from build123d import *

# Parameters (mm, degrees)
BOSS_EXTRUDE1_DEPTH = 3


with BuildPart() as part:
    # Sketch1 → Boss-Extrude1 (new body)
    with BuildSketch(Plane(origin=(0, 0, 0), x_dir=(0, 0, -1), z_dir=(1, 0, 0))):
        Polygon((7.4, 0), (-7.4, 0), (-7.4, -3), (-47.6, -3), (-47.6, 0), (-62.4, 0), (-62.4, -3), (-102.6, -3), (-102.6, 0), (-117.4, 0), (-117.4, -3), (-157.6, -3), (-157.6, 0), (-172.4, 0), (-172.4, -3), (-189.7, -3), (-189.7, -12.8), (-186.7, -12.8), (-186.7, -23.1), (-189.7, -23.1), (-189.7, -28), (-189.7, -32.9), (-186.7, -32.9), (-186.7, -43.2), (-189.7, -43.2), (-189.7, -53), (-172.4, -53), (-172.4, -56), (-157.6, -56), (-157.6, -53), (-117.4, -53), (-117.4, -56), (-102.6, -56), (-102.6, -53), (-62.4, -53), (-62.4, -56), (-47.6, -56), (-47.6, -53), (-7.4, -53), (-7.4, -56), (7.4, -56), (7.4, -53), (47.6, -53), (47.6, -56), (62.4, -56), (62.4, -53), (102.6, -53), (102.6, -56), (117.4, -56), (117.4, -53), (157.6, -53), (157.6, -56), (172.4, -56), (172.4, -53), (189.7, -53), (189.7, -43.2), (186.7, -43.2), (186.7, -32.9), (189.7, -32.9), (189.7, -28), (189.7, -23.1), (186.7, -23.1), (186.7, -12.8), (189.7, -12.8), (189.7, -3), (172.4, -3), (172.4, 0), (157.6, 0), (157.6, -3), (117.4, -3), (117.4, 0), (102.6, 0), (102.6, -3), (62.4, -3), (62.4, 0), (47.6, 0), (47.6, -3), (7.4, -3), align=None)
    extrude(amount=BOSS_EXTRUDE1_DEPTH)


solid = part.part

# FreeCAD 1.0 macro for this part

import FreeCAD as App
import Part
import Sketcher

V = App.Vector


def add_polygon(sketch, points):
    """Adds a closed chain of lines whose ends are joined by coincident constraints."""
    first, n = sketch.GeometryCount, len(points)
    for a, b in zip(points, points[1:] + points[:1]):
        sketch.addGeometry(Part.LineSegment(App.Vector(*a, 0), App.Vector(*b, 0)), False)
    for i in range(n):
        sketch.addConstraint(Sketcher.Constraint("Coincident", first + i, 2, first + (i + 1) % n, 1))

doc = App.newDocument("Part")
body = doc.addObject("PartDesign::Body", "Body")

# Sketch on YZ plane
sketch1 = body.newObject("Sketcher::SketchObject", "Sketch")
sketch1.AttachmentSupport = (doc.getObject("YZ_Plane"), [""])
sketch1.MapMode = "FlatFace"
add_polygon(sketch1, [(0, -7.4), (0, 7.4), (-3, 7.4), (-3, 47.6), (0, 47.6), (0, 62.4), (-3, 62.4), (-3, 102.6), (0, 102.6), (0, 117.4), (-3, 117.4), (-3, 157.6), (0, 157.6), (0, 172.4), (-3, 172.4), (-3, 189.7), (-12.8, 189.7), (-12.8, 186.7), (-23.1, 186.7), (-23.1, 189.7), (-32.9, 189.7), (-32.9, 186.7), (-43.2, 186.7), (-43.2, 189.7), (-53, 189.7), (-53, 172.4), (-56, 172.4), (-56, 157.6), (-53, 157.6), (-53, 117.4), (-56, 117.4), (-56, 102.6), (-53, 102.6), (-53, 62.4), (-56, 62.4), (-56, 47.6), (-53, 47.6), (-53, 7.4), (-56, 7.4), (-56, -7.4), (-53, -7.4), (-53, -47.6), (-56, -47.6), (-56, -62.4), (-53, -62.4), (-53, -102.6), (-56, -102.6), (-56, -117.4), (-53, -117.4), (-53, -157.6), (-56, -157.6), (-56, -172.4), (-53, -172.4), (-53, -189.7), (-43.2, -189.7), (-43.2, -186.7), (-32.9, -186.7), (-32.9, -189.7), (-23.1, -189.7), (-23.1, -186.7), (-12.8, -186.7), (-12.8, -189.7), (-3, -189.7), (-3, -172.4), (0, -172.4), (0, -157.6), (-3, -157.6), (-3, -117.4), (0, -117.4), (0, -102.6), (-3, -102.6), (-3, -62.4), (0, -62.4), (0, -47.6), (-3, -47.6), (-3, -7.4)])  # lines 0-75
sketch1.addConstraint(Sketcher.Constraint("Vertical", 0))
sketch1.addConstraint(Sketcher.Constraint("Horizontal", 1))
sketch1.addConstraint(Sketcher.Constraint("Vertical", 2))
sketch1.addConstraint(Sketcher.Constraint("Horizontal", 3))
sketch1.addConstraint(Sketcher.Constraint("Vertical", 4))
sketch1.addConstraint(Sketcher.Constraint("Horizontal", 5))
sketch1.addConstraint(Sketcher.Constraint("Vertical", 6))
sketch1.addConstraint(Sketcher.Constraint("Horizontal", 7))
sketch1.addConstraint(Sketcher.Constraint("Vertical", 8))
sketch1.addConstraint(Sketcher.Constraint("Horizontal", 9))
sketch1.addConstraint(Sketcher.Constraint("Vertical", 10))
sketch1.addConstraint(Sketcher.Constraint("Horizontal", 11))
sketch1.addConstraint(Sketcher.Constraint("Vertical", 12))
sketch1.addConstraint(Sketcher.Constraint("Horizontal", 13))
sketch1.addConstraint(Sketcher.Constraint("Vertical", 14))
sketch1.addConstraint(Sketcher.Constraint("Horizontal", 15))
sketch1.addConstraint(Sketcher.Constraint("Vertical", 16))
sketch1.addConstraint(Sketcher.Constraint("Horizontal", 17))
sketch1.addConstraint(Sketcher.Constraint("Vertical", 18))
sketch1.addConstraint(Sketcher.Constraint("Horizontal", 19))
sketch1.addConstraint(Sketcher.Constraint("Vertical", 20))
sketch1.addConstraint(Sketcher.Constraint("Horizontal", 21))
sketch1.addConstraint(Sketcher.Constraint("Vertical", 22))
sketch1.addConstraint(Sketcher.Constraint("Horizontal", 23))
sketch1.addConstraint(Sketcher.Constraint("Vertical", 24))
sketch1.addConstraint(Sketcher.Constraint("Horizontal", 25))
sketch1.addConstraint(Sketcher.Constraint("Vertical", 26))
sketch1.addConstraint(Sketcher.Constraint("Horizontal", 27))
sketch1.addConstraint(Sketcher.Constraint("Vertical", 28))
sketch1.addConstraint(Sketcher.Constraint("Horizontal", 29))
sketch1.addConstraint(Sketcher.Constraint("Vertical", 30))
sketch1.addConstraint(Sketcher.Constraint("Horizontal", 31))
sketch1.addConstraint(Sketcher.Constraint("Vertical", 32))
sketch1.addConstraint(Sketcher.Constraint("Horizontal", 33))
sketch1.addConstraint(Sketcher.Constraint("Vertical", 34))
sketch1.addConstraint(Sketcher.Constraint("Horizontal", 35))
sketch1.addConstraint(Sketcher.Constraint("Vertical", 36))
sketch1.addConstraint(Sketcher.Constraint("Horizontal", 37))
sketch1.addConstraint(Sketcher.Constraint("Vertical", 38))
sketch1.addConstraint(Sketcher.Constraint("Horizontal", 39))
sketch1.addConstraint(Sketcher.Constraint("Vertical", 40))
sketch1.addConstraint(Sketcher.Constraint("Horizontal", 41))
sketch1.addConstraint(Sketcher.Constraint("Vertical", 42))
sketch1.addConstraint(Sketcher.Constraint("Horizontal", 43))
sketch1.addConstraint(Sketcher.Constraint("Vertical", 44))
sketch1.addConstraint(Sketcher.Constraint("Horizontal", 45))
sketch1.addConstraint(Sketcher.Constraint("Vertical", 46))
sketch1.addConstraint(Sketcher.Constraint("Horizontal", 47))
sketch1.addConstraint(Sketcher.Constraint("Vertical", 48))
sketch1.addConstraint(Sketcher.Constraint("Horizontal", 49))
sketch1.addConstraint(Sketcher.Constraint("Vertical", 50))
sketch1.addConstraint(Sketcher.Constraint("Horizontal", 51))
sketch1.addConstraint(Sketcher.Constraint("Vertical", 52))
sketch1.addConstraint(Sketcher.Constraint("Horizontal", 53))
sketch1.addConstraint(Sketcher.Constraint("Vertical", 54))
sketch1.addConstraint(Sketcher.Constraint("Horizontal", 55))
sketch1.addConstraint(Sketcher.Constraint("Vertical", 56))
sketch1.addConstraint(Sketcher.Constraint("Horizontal", 57))
sketch1.addConstraint(Sketcher.Constraint("Vertical", 58))
sketch1.addConstraint(Sketcher.Constraint("Horizontal", 59))
sketch1.addConstraint(Sketcher.Constraint("Vertical", 60))
sketch1.addConstraint(Sketcher.Constraint("Horizontal", 61))
sketch1.addConstraint(Sketcher.Constraint("Vertical", 62))
sketch1.addConstraint(Sketcher.Constraint("Horizontal", 63))
sketch1.addConstraint(Sketcher.Constraint("Vertical", 64))
sketch1.addConstraint(Sketcher.Constraint("Horizontal", 65))
sketch1.addConstraint(Sketcher.Constraint("Vertical", 66))
sketch1.addConstraint(Sketcher.Constraint("Horizontal", 67))
sketch1.addConstraint(Sketcher.Constraint("Vertical", 68))
sketch1.addConstraint(Sketcher.Constraint("Horizontal", 69))
sketch1.addConstraint(Sketcher.Constraint("Vertical", 70))
sketch1.addConstraint(Sketcher.Constraint("Horizontal", 71))
sketch1.addConstraint(Sketcher.Constraint("Vertical", 72))
sketch1.addConstraint(Sketcher.Constraint("Horizontal", 73))
sketch1.addConstraint(Sketcher.Constraint("Vertical", 74))
sketch1.addConstraint(Sketcher.Constraint("Horizontal", 75))
sketch1.addConstraint(Sketcher.Constraint("Symmetric", 12, 2, 63, 2, -1, 1))
sketch1.addConstraint(Sketcher.Constraint("Symmetric", 8, 2, 67, 2, -1, 1))
sketch1.addConstraint(Sketcher.Constraint("Symmetric", 4, 2, 71, 2, -1, 1))
sketch1.addConstraint(Sketcher.Constraint("Symmetric", 0, 2, 75, 2, -1, 1))
sketch1.addConstraint(Sketcher.Constraint("Symmetric", 36, 2, 39, 2, -1))
sketch1.addConstraint(Sketcher.Constraint("Symmetric", 34, 2, 41, 2, -1))
sketch1.addConstraint(Sketcher.Constraint("Symmetric", 32, 2, 43, 2, -1))
sketch1.addConstraint(Sketcher.Constraint("Symmetric", 30, 2, 45, 2, -1))
sketch1.addConstraint(Sketcher.Constraint("Symmetric", 28, 2, 47, 2, -1))
sketch1.addConstraint(Sketcher.Constraint("Symmetric", 26, 2, 49, 2, -1))
sketch1.addConstraint(Sketcher.Constraint("Symmetric", 24, 2, 51, 2, -1))
sketch1.addConstraint(Sketcher.Constraint("Symmetric", 22, 2, 53, 2, -1))
sketch1.addConstraint(Sketcher.Constraint("Symmetric", 20, 2, 55, 2, -1))
sketch1.addConstraint(Sketcher.Constraint("Symmetric", 18, 2, 57, 2, -1))
sketch1.addConstraint(Sketcher.Constraint("Symmetric", 16, 2, 59, 2, -1))
sketch1.addConstraint(Sketcher.Constraint("Symmetric", 14, 2, 61, 2, -1))
sketch1.addConstraint(Sketcher.Constraint("Symmetric", 11, 2, 64, 2, -1))
sketch1.addConstraint(Sketcher.Constraint("Symmetric", 7, 2, 68, 2, -1))
sketch1.addConstraint(Sketcher.Constraint("Symmetric", 3, 2, 72, 2, -1))
sketch1.addConstraint(Sketcher.Constraint("Horizontal", 15, 2, 18, 2))
sketch1.addConstraint(Sketcher.Constraint("Horizontal", 17, 2, 20, 2))
sketch1.addConstraint(Sketcher.Constraint("Horizontal", 19, 2, 22, 2))
sketch1.addConstraint(Sketcher.Constraint("Horizontal", 13, 2, 24, 2))
sketch1.addConstraint(Sketcher.Constraint("Horizontal", 11, 2, 26, 2))
sketch1.addConstraint(Sketcher.Constraint("Horizontal", 9, 2, 28, 2))
sketch1.addConstraint(Sketcher.Constraint("Horizontal", 7, 2, 30, 2))
sketch1.addConstraint(Sketcher.Constraint("Horizontal", 5, 2, 32, 2))
sketch1.addConstraint(Sketcher.Constraint("Horizontal", 3, 2, 34, 2))
sketch1.addConstraint(Sketcher.Constraint("Horizontal", 1, 2, 36, 2))
sketch1.addConstraint(Sketcher.Constraint("Vertical", 2, 2, 5, 2))
sketch1.addConstraint(Sketcher.Constraint("Vertical", 6, 2, 9, 2))
sketch1.addConstraint(Sketcher.Constraint("Vertical", 10, 2, 13, 2))
sketch1.addConstraint(Sketcher.Constraint("Vertical", 24, 2, 27, 2))
sketch1.addConstraint(Sketcher.Constraint("Vertical", 26, 2, 29, 2))
sketch1.addConstraint(Sketcher.Constraint("Vertical", 28, 2, 31, 2))
sketch1.addConstraint(Sketcher.Constraint("Vertical", 30, 2, 33, 2))
sketch1.addConstraint(Sketcher.Constraint("Vertical", 32, 2, 35, 2))
sketch1.addConstraint(Sketcher.Constraint("Vertical", 34, 2, 37, 2))
sketch1.addConstraint(Sketcher.Constraint("Vertical", 62, 2, 65, 2))
sketch1.addConstraint(Sketcher.Constraint("Vertical", 66, 2, 69, 2))
sketch1.addConstraint(Sketcher.Constraint("Vertical", 70, 2, 73, 2))
sketch1.addConstraint(Sketcher.Constraint("Equal", 15, 19))
sketch1.addConstraint(Sketcher.Constraint("Equal", 17, 21))
sketch1.addConstraint(Sketcher.Constraint("Equal", 19, 23))
sketch1.addConstraint(Sketcher.Constraint("Equal", 13, 25))
sketch1.addConstraint(Sketcher.Constraint("Equal", 0, 4))
sketch1.addConstraint(Sketcher.Constraint("Equal", 2, 6))
sketch1.addConstraint(Sketcher.Constraint("Equal", 4, 8))
sketch1.addConstraint(Sketcher.Constraint("Equal", 6, 10))
sketch1.addConstraint(Sketcher.Constraint("Equal", 8, 12))
sketch1.addConstraint(Sketcher.Constraint("Equal", 75, 16))
sketch1.addConstraint(Sketcher.Constraint("DistanceX", 1, 2, 1, 1, 3.0))
sketch1.addConstraint(Sketcher.Constraint("DistanceX", 15, 2, 15, 1, 9.8))
sketch1.addConstraint(Sketcher.Constraint("DistanceX", 17, 2, 17, 1, 10.3))
sketch1.addConstraint(Sketcher.Constraint("DistanceY", 0, 1, 0, 2, 14.8))
sketch1.addConstraint(Sketcher.Constraint("DistanceY", 2, 1, 2, 2, 40.2))
sketch1.addConstraint(Sketcher.Constraint("DistanceY", 14, 1, 14, 2, 17.3))
pad1 = body.newObject("PartDesign::Pad", "Pad")
pad1.Profile = sketch1
pad1.Length = 3

doc.recompute()
